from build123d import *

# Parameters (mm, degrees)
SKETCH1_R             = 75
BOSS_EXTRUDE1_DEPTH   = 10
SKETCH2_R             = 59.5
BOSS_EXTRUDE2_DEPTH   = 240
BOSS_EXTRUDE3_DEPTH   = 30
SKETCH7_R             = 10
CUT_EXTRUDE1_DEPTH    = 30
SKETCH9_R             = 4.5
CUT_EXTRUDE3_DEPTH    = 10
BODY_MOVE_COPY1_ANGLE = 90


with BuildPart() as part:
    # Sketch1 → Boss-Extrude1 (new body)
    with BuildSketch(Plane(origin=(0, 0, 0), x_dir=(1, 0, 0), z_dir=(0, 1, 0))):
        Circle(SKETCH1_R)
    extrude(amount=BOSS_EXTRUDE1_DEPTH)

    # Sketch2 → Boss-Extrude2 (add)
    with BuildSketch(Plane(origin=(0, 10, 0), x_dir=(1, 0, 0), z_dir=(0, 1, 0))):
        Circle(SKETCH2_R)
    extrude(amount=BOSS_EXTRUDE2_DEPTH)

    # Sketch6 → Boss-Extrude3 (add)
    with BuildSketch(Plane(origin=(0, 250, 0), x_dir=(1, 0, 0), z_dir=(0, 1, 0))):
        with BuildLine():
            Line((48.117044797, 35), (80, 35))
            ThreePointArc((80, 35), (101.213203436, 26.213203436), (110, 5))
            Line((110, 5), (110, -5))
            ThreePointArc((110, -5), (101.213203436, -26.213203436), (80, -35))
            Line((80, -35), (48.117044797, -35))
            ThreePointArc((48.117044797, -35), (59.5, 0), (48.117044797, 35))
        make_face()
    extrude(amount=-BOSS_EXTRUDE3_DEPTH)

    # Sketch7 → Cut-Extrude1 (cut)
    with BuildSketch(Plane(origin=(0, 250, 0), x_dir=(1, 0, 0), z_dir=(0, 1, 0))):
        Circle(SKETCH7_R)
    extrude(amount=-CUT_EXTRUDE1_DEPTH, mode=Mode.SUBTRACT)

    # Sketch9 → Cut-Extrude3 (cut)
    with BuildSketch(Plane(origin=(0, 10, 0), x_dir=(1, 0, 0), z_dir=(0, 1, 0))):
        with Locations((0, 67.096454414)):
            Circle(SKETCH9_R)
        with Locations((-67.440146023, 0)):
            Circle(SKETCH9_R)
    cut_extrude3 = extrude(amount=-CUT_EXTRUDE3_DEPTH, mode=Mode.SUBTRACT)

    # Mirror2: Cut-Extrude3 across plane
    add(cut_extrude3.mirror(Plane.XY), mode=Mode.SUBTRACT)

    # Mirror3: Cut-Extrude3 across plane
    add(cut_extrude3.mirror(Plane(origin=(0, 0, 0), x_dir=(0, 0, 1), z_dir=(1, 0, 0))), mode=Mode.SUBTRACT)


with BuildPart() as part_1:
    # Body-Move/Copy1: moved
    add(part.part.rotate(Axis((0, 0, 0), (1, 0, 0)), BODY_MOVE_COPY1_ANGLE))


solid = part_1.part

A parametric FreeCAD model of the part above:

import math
import FreeCAD as App
import Part
import Sketcher
Q = App.Units.Quantity

doc = App.newDocument("Part")
body = doc.addObject("PartDesign::Body", "Body")

# Sketch on XZ plane
sketch1 = doc.addObject("Sketcher::SketchObject", "Sketch")
body.addObject(sketch1)
sketch1.AttachmentSupport = (doc.XZ_Plane, [""])
sketch1.MapMode = "FlatFace"
sketch1.addGeometry(Part.Circle(App.Vector(0, 0, 0), App.Vector(0, 0, 1), 75), False)
sketch1.addConstraint(Sketcher.Constraint("Coincident", 0, 3, -1, 1))
sketch1.addConstraint(Sketcher.Constraint("Diameter", 0, Q("150 mm")))
pad1 = doc.addObject("PartDesign::Pad", "Pad")
body.addObject(pad1)
pad1.Profile = sketch1
pad1.Length = 10
pad1.Reversed = True

# Sketch on XZ plane
sketch2 = doc.addObject("Sketcher::SketchObject", "Sketch001")
body.addObject(sketch2)
sketch2.AttachmentSupport = (doc.XZ_Plane, [""])
sketch2.MapMode = "FlatFace"
sketch2.AttachmentOffset = App.Placement(App.Vector(0, 0, -10), App.Rotation())
sketch2.addGeometry(Part.Circle(App.Vector(0, 0, 0), App.Vector(0, 0, 1), 60), False)
sketch2.addConstraint(Sketcher.Constraint("Coincident", 0, 3, -1, 1))
sketch2.addConstraint(Sketcher.Constraint("Diameter", 0, Q("119 mm")))
pad2 = doc.addObject("PartDesign::Pad", "Pad001")
body.addObject(pad2)
pad2.Profile = sketch2
pad2.Length = 240
pad2.Reversed = True

# Sketch on XZ plane
sketch3 = doc.addObject("Sketcher::SketchObject", "Sketch002")
body.addObject(sketch3)
sketch3.AttachmentSupport = (doc.XZ_Plane, [""])
sketch3.MapMode = "FlatFace"
sketch3.AttachmentOffset = App.Placement(App.Vector(0, 0, -250), App.Rotation())
sketch3.addGeometry(Part.LineSegment(App.Vector(80, -35, 0), App.Vector(48, -35, 0)), False)
sketch3.addGeometry(Part.ArcOfCircle(Part.Circle(App.Vector(0, 0, 0), App.Vector(0, 0, 1), 60), math.radians(-36), math.radians(36)), False)
sketch3.addGeometry(Part.LineSegment(App.Vector(48, 35, 0), App.Vector(80, 35, 0)), False)
sketch3.addGeometry(Part.ArcOfCircle(Part.Circle(App.Vector(80, 5, 0), App.Vector(0, 0, 1), 30), math.radians(0), math.radians(90)), False)
sketch3.addGeometry(Part.LineSegment(App.Vector(110, 5, 0), App.Vector(110, -5, 0)), False)
sketch3.addGeometry(Part.ArcOfCircle(Part.Circle(App.Vector(80, -5, 0), App.Vector(0, 0, 1), 30), math.radians(-90), math.radians(0)), False)
sketch3.addConstraint(Sketcher.Constraint("Coincident", 0, 2, 1, 1))
sketch3.addConstraint(Sketcher.Constraint("Coincident", 1, 2, 2, 1))
sketch3.addConstraint(Sketcher.Constraint("Tangent", 2, 2, 3, 2))
sketch3.addConstraint(Sketcher.Constraint("Tangent", 3, 1, 4, 1))
sketch3.addConstraint(Sketcher.Constraint("Tangent", 4, 2, 5, 2))
sketch3.addConstraint(Sketcher.Constraint("Tangent", 5, 1, 0, 1))
sketch3.addConstraint(Sketcher.Constraint("Horizontal", 0))
sketch3.addConstraint(Sketcher.Constraint("Horizontal", 2))
sketch3.addConstraint(Sketcher.Constraint("Vertical", 4))
sketch3.addConstraint(Sketcher.Constraint("Coincident", 1, 3, -1, 1))
sketch3.addConstraint(Sketcher.Constraint("Equal", 3, 5))
sketch3.addConstraint(Sketcher.Constraint("Vertical", 0, 2, 1, 2))
sketch3.addConstraint(Sketcher.Constraint("Radius", 3, Q("30 mm")))
sketch3.addConstraint(Sketcher.Constraint("Radius", 1, Q("59.5 mm")))
sketch3.addConstraint(Sketcher.Constraint("DistanceY", 4, 2, 4, 1, Q("10 mm")))
sketch3.addConstraint(Sketcher.Constraint("DistanceX", -1, 1, 3, 3, Q("80 mm")))
pad3 = doc.addObject("PartDesign::Pad", "Pad002")
body.addObject(pad3)
pad3.Profile = sketch3
pad3.Length = 30

# Sketch on XZ plane
sketch4 = doc.addObject("Sketcher::SketchObject", "Sketch003")
body.addObject(sketch4)
sketch4.AttachmentSupport = (doc.XZ_Plane, [""])
sketch4.MapMode = "FlatFace"
sketch4.AttachmentOffset = App.Placement(App.Vector(0, 0, -250), App.Rotation())
sketch4.addGeometry(Part.Circle(App.Vector(0, 0, 0), App.Vector(0, 0, 1), 10), False)
sketch4.addConstraint(Sketcher.Constraint("Coincident", 0, 3, -1, 1))
sketch4.addConstraint(Sketcher.Constraint("Diameter", 0, Q("20 mm")))
pocket1 = doc.addObject("PartDesign::Pocket", "Pocket")
body.addObject(pocket1)
pocket1.Profile = sketch4
pocket1.Length = 30
pocket1.Reversed = True

# Sketch on XZ plane
sketch5 = doc.addObject("Sketcher::SketchObject", "Sketch004")
body.addObject(sketch5)
sketch5.AttachmentSupport = (doc.XZ_Plane, [""])
sketch5.MapMode = "FlatFace"
sketch5.AttachmentOffset = App.Placement(App.Vector(0, 0, -10), App.Rotation())
sketch5.addGeometry(Part.Circle(App.Vector(0, -67.1, 0), App.Vector(0, 0, 1), 4.5), False)
sketch5.addGeometry(Part.Circle(App.Vector(-67.4, 0, 0), App.Vector(0, 0, 1), 4.5), False)
sketch5.addConstraint(Sketcher.Constraint("Equal", 0, 1))
sketch5.addConstraint(Sketcher.Constraint("PointOnObject", 0, 3, -2))
sketch5.addConstraint(Sketcher.Constraint("PointOnObject", 1, 3, -1))
sketch5.addConstraint(Sketcher.Constraint("Diameter", 0, Q("9 mm")))
sketch5.addConstraint(Sketcher.Constraint("DistanceY", 0, 3, -1, 1, Q("67.096454 mm")))
sketch5.addConstraint(Sketcher.Constraint("DistanceX", 1, 3, -1, 1, Q("67.440146 mm")))
pocket2 = doc.addObject("PartDesign::Pocket", "Pocket001")
body.addObject(pocket2)
pocket2.Profile = sketch5
pocket2.Length = 10
pocket2.Reversed = True
doc.recompute()

mirrored = doc.addObject("PartDesign::Mirrored", "Mirrored")
body.addObject(mirrored)
mirrored.Originals = [pocket2]
mirrored.MirrorPlane = (doc.XY_Plane, [""])
body.Tip = mirrored
doc.recompute()

mirrored2 = doc.addObject("PartDesign::Mirrored", "Mirrored001")
body.addObject(mirrored2)
mirrored2.Originals = [pocket2]
mirrored2.MirrorPlane = (doc.YZ_Plane, [""])
body.Tip = mirrored2
body2 = doc.addObject("PartDesign::Body", "Body001")
doc.recompute()

body.Placement = App.Placement(App.Vector(0, 0, 0), App.Rotation(App.Vector(1, 0, 0), 90))
boolean = doc.addObject("PartDesign::Boolean", "Boolean")
body2.addObject(boolean)
boolean.Type = "Fuse"
boolean.addObjects([body])

doc.recompute()
